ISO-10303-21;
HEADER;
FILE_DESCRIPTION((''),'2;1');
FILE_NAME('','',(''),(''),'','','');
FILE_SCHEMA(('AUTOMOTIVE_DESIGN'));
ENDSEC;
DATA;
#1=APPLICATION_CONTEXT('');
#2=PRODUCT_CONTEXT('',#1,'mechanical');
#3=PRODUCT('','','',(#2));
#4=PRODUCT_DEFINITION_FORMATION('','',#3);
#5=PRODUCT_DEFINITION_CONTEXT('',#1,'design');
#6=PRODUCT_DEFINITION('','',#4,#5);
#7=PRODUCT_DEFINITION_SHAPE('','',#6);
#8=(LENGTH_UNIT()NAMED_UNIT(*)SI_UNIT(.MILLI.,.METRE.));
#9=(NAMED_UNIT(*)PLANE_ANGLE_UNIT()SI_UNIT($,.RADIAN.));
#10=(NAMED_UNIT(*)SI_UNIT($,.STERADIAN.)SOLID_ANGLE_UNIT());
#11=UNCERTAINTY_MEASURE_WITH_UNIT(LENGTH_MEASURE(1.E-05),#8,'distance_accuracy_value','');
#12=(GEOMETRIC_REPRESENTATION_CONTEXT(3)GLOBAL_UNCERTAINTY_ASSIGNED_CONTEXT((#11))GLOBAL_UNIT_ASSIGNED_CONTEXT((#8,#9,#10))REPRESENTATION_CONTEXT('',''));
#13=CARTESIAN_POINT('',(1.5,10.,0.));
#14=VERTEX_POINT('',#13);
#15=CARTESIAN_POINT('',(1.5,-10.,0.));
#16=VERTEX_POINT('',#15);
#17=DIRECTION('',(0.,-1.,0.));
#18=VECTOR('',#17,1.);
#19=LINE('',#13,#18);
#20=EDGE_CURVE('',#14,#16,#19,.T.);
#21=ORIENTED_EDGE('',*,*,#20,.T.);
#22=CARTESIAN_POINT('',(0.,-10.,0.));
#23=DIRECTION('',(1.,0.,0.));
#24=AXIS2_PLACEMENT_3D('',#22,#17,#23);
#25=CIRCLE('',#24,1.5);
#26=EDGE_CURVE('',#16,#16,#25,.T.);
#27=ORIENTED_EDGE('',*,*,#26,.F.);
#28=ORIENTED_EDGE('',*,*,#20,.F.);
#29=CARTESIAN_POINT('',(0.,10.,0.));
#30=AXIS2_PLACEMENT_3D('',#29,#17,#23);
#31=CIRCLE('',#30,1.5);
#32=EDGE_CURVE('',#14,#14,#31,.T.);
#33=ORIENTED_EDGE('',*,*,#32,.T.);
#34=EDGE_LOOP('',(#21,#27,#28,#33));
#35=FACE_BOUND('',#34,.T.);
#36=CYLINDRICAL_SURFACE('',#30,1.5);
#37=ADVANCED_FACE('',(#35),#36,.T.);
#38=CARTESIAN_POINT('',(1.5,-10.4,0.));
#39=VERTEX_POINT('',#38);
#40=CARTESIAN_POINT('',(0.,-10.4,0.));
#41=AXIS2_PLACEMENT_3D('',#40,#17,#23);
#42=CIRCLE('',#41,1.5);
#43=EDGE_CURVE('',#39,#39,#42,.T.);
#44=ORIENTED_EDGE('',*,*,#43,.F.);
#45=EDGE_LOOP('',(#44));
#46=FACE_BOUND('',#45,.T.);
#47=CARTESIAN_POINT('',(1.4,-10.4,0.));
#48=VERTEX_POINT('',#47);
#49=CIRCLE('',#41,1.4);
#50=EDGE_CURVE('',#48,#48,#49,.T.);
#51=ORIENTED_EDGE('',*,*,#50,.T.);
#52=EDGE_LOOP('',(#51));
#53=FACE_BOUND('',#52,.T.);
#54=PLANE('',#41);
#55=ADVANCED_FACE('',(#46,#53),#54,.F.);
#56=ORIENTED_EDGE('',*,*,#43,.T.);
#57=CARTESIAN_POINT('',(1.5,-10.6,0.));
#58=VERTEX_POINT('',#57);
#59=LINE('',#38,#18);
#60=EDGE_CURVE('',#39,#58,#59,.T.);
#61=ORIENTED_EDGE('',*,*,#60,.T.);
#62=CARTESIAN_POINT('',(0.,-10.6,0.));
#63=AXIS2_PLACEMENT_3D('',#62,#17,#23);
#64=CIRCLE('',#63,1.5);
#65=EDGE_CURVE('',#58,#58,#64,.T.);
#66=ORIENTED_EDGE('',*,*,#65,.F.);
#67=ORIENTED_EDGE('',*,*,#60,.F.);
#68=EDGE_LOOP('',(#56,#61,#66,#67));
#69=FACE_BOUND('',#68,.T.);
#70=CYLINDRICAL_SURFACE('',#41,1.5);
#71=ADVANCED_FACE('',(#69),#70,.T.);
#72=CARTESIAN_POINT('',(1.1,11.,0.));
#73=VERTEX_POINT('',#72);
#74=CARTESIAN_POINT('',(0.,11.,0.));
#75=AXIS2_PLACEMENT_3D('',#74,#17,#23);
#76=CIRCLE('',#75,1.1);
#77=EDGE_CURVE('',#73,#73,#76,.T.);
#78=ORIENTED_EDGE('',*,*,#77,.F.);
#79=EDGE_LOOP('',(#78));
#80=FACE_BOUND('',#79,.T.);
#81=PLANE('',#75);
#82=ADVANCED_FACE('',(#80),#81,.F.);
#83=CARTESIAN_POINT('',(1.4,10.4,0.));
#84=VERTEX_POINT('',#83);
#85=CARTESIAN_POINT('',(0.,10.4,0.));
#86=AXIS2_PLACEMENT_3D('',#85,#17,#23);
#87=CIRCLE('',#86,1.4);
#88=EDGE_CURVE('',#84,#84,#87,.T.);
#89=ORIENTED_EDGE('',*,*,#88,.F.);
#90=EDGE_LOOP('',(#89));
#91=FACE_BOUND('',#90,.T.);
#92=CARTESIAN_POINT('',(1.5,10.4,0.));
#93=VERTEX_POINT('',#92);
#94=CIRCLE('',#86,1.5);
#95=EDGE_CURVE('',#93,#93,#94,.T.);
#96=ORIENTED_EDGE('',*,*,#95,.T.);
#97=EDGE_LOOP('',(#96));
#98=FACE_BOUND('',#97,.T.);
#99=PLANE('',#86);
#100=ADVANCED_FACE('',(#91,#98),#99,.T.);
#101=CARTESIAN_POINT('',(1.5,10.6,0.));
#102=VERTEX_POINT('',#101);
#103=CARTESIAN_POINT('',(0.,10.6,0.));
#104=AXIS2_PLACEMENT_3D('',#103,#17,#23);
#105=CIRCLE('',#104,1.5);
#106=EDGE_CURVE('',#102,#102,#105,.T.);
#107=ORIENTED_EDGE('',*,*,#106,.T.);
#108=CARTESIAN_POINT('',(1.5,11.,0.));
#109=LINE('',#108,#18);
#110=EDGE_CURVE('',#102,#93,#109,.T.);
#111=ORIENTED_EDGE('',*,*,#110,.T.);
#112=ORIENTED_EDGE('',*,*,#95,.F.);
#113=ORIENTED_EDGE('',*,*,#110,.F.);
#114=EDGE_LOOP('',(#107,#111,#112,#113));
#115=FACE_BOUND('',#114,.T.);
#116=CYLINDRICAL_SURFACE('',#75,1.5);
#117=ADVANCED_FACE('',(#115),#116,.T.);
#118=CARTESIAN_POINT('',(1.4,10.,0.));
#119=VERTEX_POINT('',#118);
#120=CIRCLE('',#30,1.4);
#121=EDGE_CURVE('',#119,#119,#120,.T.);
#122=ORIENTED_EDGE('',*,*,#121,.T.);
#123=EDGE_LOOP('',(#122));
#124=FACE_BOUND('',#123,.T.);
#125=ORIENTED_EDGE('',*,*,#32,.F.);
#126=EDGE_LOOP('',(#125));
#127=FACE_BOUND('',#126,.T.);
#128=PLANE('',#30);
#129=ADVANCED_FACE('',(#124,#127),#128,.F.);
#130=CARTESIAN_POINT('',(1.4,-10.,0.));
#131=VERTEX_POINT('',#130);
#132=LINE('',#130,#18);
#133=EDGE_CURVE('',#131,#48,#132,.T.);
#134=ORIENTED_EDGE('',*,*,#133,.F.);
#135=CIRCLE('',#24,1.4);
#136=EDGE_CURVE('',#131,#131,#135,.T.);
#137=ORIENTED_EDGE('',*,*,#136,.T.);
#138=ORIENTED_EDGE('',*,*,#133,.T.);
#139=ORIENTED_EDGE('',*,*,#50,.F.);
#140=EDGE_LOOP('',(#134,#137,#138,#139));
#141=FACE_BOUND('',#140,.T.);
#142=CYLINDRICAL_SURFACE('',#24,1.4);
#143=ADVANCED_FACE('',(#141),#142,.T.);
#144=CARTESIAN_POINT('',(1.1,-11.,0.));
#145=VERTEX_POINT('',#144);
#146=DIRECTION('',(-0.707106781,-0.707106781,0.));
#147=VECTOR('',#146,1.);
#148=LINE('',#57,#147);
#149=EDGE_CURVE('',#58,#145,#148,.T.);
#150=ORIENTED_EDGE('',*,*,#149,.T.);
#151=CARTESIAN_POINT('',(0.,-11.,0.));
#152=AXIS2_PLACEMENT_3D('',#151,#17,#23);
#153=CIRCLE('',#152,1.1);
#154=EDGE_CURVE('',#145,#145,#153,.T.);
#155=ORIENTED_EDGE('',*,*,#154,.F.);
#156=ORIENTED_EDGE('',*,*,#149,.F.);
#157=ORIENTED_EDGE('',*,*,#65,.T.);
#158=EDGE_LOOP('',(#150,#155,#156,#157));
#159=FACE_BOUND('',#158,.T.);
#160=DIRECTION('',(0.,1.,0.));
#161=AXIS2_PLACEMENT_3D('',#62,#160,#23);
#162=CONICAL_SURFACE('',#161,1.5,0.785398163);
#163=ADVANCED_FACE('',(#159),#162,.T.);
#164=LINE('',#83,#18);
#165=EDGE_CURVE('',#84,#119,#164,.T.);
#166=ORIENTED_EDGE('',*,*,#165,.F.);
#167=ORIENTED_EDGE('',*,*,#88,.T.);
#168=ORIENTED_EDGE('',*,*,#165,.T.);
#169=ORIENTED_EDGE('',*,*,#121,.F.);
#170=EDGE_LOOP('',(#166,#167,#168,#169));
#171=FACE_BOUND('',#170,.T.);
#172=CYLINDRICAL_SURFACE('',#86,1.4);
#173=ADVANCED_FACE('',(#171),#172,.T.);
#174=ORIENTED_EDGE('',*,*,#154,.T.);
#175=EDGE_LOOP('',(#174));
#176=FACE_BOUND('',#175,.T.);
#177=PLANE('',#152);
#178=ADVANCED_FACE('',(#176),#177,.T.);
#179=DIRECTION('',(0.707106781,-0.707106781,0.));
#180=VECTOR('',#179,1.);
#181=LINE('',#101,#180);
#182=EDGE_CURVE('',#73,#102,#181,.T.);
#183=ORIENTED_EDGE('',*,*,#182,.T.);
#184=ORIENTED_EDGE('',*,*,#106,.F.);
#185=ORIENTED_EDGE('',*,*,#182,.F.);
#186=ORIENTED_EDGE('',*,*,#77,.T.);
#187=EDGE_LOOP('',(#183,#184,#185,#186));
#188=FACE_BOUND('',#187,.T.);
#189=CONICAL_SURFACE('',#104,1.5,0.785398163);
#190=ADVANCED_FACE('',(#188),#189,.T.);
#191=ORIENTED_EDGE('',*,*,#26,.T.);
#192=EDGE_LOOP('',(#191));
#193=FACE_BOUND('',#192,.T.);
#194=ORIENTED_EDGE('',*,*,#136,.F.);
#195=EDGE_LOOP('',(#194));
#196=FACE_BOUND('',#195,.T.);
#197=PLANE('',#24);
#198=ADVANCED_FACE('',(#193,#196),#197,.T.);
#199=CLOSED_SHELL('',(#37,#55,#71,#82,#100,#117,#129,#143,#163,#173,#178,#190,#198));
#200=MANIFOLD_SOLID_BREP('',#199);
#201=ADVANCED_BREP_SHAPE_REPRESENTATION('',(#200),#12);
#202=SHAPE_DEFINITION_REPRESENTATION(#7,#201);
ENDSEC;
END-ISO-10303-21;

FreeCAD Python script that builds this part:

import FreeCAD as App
import Part
import Sketcher
from FreeCAD import Vector
Q = App.Units.Quantity


def edges_at(feature, points):
    """Names of the edges that pass closest to the given points."""
    edges = feature.Shape.Edges
    near = lambda p: min(range(len(edges)), key=lambda i: edges[i].distToShape(Part.Vertex(*p))[0])
    return sorted({f"Edge{near(p) + 1}" for p in points})


def add_polygon(sketch, points):
    """Adds a closed chain of lines whose ends are joined by coincident constraints."""
    first, n = sketch.GeometryCount, len(points)
    for a, b in zip(points, points[1:] + points[:1]):
        sketch.addGeometry(Part.LineSegment(App.Vector(*a, 0), App.Vector(*b, 0)), False)
    for i in range(n):
        sketch.addConstraint(Sketcher.Constraint("Coincident", first + i, 2, first + (i + 1) % n, 1))

doc = App.newDocument("Part")
params = doc.addObject("Spreadsheet::Sheet", "Params")
for row, (alias, value) in enumerate([
    ("sketch1_width", "1.5 mm"),
    ("sketch1_height", "22 mm"),
    ("sketch1_height2", "20 mm"),
    ("sketch1_height3", "0.6 mm"),
    ("revolution_angle", "360 deg"),
    ("chamfer_size", "0.4 mm"),
], start=1):
    params.set(f"A{row}", alias)
    params.set(f"B{row}", "=" + value)
    params.setAlias(f"B{row}", alias)

body = doc.addObject("PartDesign::Body", "Body")

sketch1 = body.newObject("Sketcher::SketchObject", "Sketch")
sketch1.AttachmentSupport = (doc.getObject("XY_Plane"), [""])
sketch1.MapMode = "FlatFace"
add_polygon(sketch1, [(1.5, 11), (0, 11), (0, -11), (1.5, -11), (1.5, -10.4), (1.4, -10.4), (1.4, -10), (1.5, -10), (1.5, 10), (1.4, 10), (1.4, 10.4), (1.5, 10.4)])
sketch1.addConstraint(Sketcher.Constraint("Horizontal", 0))
sketch1.addConstraint(Sketcher.Constraint("Vertical", 1))
sketch1.addConstraint(Sketcher.Constraint("Horizontal", 2))
sketch1.addConstraint(Sketcher.Constraint("Vertical", 3))
sketch1.addConstraint(Sketcher.Constraint("Horizontal", 4))
sketch1.addConstraint(Sketcher.Constraint("Vertical", 5))
sketch1.addConstraint(Sketcher.Constraint("Horizontal", 6))
sketch1.addConstraint(Sketcher.Constraint("Vertical", 7))
sketch1.addConstraint(Sketcher.Constraint("Horizontal", 8))
sketch1.addConstraint(Sketcher.Constraint("Vertical", 9))
sketch1.addConstraint(Sketcher.Constraint("Horizontal", 10))
sketch1.addConstraint(Sketcher.Constraint("Vertical", 11))
sketch1.addConstraint(Sketcher.Constraint("Symmetric", 0, 2, 1, 2, -1, 1))
sketch1.addConstraint(Sketcher.Constraint("Symmetric", 5, 2, 8, 2, -1))
sketch1.addConstraint(Sketcher.Constraint("Symmetric", 3, 2, 10, 2, -1))
sketch1.addConstraint(Sketcher.Constraint("Vertical", 3, 2, 6, 2))
sketch1.addConstraint(Sketcher.Constraint("DistanceX", 0, 2, 0, 1, Q("1.5 mm")))
sketch1.addConstraint(Sketcher.Constraint("DistanceX", -1, 1, 4, 2, Q("1.4 mm")))
sketch1.addConstraint(Sketcher.Constraint("DistanceY", 1, 2, 1, 1, Q("22 mm")))
sketch1.addConstraint(Sketcher.Constraint("DistanceY", 7, 1, 7, 2, Q("20 mm")))
sketch1.addConstraint(Sketcher.Constraint("DistanceY", 3, 1, 3, 2, Q("0.6 mm")))
sketch1.setExpression("Constraints[28]", "Params.sketch1_width")
sketch1.setExpression("Constraints[30]", "Params.sketch1_height")
sketch1.setExpression("Constraints[31]", "Params.sketch1_height2")
sketch1.setExpression("Constraints[32]", "Params.sketch1_height3")
revolution = body.newObject("PartDesign::Revolution", "Revolution")
revolution.Profile = sketch1
revolution.ReferenceAxis = (sketch1, ["V_Axis"])
revolution.setExpression("Angle", "Params.revolution_angle")
doc.recompute()

chamfer = body.newObject("PartDesign::Chamfer", "Chamfer")
chamfer.Base = (revolution, edges_at(revolution, [(1.5, -11, 0), (1.5, 11, 0)]))
chamfer.setExpression("Size", "Params.chamfer_size")

doc.recompute()
